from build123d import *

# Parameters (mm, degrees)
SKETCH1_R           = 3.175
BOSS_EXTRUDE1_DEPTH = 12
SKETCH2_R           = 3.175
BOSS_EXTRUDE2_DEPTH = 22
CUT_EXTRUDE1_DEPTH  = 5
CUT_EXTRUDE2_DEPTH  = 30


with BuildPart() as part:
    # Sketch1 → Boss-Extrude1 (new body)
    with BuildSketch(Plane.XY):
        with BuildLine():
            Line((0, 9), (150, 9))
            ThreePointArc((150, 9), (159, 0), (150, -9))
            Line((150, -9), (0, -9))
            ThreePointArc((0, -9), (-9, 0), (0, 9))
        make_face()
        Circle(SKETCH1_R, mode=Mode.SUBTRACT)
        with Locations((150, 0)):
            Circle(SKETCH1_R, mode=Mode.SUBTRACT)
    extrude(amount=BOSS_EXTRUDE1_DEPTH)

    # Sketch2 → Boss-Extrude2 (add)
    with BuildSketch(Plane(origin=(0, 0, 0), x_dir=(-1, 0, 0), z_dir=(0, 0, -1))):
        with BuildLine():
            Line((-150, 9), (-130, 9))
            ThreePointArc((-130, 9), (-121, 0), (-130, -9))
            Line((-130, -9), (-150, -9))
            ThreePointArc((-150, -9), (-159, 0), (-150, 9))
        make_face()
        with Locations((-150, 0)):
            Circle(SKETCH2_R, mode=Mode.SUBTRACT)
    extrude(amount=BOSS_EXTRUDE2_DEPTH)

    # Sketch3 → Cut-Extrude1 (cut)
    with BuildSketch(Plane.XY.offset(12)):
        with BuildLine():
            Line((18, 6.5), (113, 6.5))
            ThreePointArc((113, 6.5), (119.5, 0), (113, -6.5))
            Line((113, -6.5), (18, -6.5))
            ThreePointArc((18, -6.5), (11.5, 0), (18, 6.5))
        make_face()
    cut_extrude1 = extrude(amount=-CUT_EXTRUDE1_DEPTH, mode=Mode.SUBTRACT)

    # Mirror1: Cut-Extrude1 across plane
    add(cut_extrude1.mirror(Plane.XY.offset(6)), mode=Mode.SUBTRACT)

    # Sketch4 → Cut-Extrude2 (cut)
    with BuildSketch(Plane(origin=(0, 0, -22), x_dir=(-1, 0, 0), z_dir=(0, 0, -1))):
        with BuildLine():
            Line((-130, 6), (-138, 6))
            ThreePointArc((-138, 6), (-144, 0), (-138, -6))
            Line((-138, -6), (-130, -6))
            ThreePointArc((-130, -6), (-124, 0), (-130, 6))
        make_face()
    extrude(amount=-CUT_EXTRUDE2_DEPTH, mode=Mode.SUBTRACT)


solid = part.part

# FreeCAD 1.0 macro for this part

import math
import FreeCAD as App
import Part
import Sketcher

doc = App.newDocument("Part")
body = doc.addObject("PartDesign::Body", "Body")

# Sketch on XY plane
sketch1 = body.newObject("Sketcher::SketchObject", "Sketch")
sketch1.AttachmentSupport = (doc.getObject("XY_Plane"), [""])
sketch1.MapMode = "FlatFace"
sketch1.addGeometry([
    Part.LineSegment(App.Vector(150, 9, 0), App.Vector(0, 9, 0)),  # 0
    Part.ArcOfCircle(Part.Circle(App.Vector(0, 0, 0), App.Vector(0, 0, 1), 9), math.radians(90), math.radians(270)),  # 1
    Part.LineSegment(App.Vector(0, -9, 0), App.Vector(150, -9, 0)),  # 2
    Part.ArcOfCircle(Part.Circle(App.Vector(150, 0, 0), App.Vector(0, 0, 1), 9), math.radians(-90), math.radians(90)),  # 3
    Part.Circle(App.Vector(150, 0, 0), App.Vector(0, 0, 1), 3.2),  # 4
    Part.Circle(App.Vector(0, 0, 0), App.Vector(0, 0, 1), 3.2),  # 5
], False)
sketch1.addConstraint([
    Sketcher.Constraint("Tangent", 0, 2, 1, 1),
    Sketcher.Constraint("Tangent", 1, 2, 2, 1),
    Sketcher.Constraint("Tangent", 2, 2, 3, 1),
    Sketcher.Constraint("Tangent", 3, 2, 0, 1),
    Sketcher.Constraint("Horizontal", 0),
    Sketcher.Constraint("Horizontal", 2),
    Sketcher.Constraint("Coincident", 1, 3, -1, 1),
    Sketcher.Constraint("Coincident", 5, 3, -1, 1),
    Sketcher.Constraint("Coincident", 4, 3, 3, 3),
    Sketcher.Constraint("Equal", 4, 5),
    Sketcher.Constraint("Radius", 1, 9.0),
    Sketcher.Constraint("Diameter", 4, 6.35),
    Sketcher.Constraint("DistanceX", 0, 2, 0, 1, 150.0),
])
pad1 = body.newObject("PartDesign::Pad", "Pad")
pad1.Profile = sketch1
pad1.Length = 12

# Sketch on XY plane
sketch2 = body.newObject("Sketcher::SketchObject", "Sketch001")
sketch2.AttachmentSupport = (doc.getObject("XY_Plane"), [""])
sketch2.MapMode = "FlatFace"
sketch2.addGeometry([
    Part.LineSegment(App.Vector(130, 9, 0), App.Vector(150, 9, 0)),  # 0
    Part.ArcOfCircle(Part.Circle(App.Vector(150, 0, 0), App.Vector(0, 0, 1), 9), math.radians(-90), math.radians(90)),  # 1
    Part.LineSegment(App.Vector(150, -9, 0), App.Vector(130, -9, 0)),  # 2
    Part.ArcOfCircle(Part.Circle(App.Vector(130, 0, 0), App.Vector(0, 0, 1), 9), math.radians(90), math.radians(270)),  # 3
    Part.Circle(App.Vector(150, 0, 0), App.Vector(0, 0, 1), 3.2),  # 4
], False)
sketch2.addConstraint([
    Sketcher.Constraint("Tangent", 0, 2, 1, 2),
    Sketcher.Constraint("Tangent", 1, 1, 2, 1),
    Sketcher.Constraint("Tangent", 2, 2, 3, 2),
    Sketcher.Constraint("Tangent", 3, 1, 0, 1),
    Sketcher.Constraint("Horizontal", 0),
    Sketcher.Constraint("Horizontal", 2),
    Sketcher.Constraint("Coincident", 4, 3, 1, 3),
    Sketcher.Constraint("PointOnObject", 1, 3, -1),
    Sketcher.Constraint("Radius", 1, 9.0),
    Sketcher.Constraint("Diameter", 4, 6.35),
    Sketcher.Constraint("DistanceX", 0, 1, 0, 2, 20.0),
    Sketcher.Constraint("DistanceX", -1, 1, 1, 3, 150.0),
])
pad2 = body.newObject("PartDesign::Pad", "Pad001")
pad2.Profile = sketch2
pad2.Length = 22
pad2.Reversed = True

# Sketch on XY plane
sketch3 = body.newObject("Sketcher::SketchObject", "Sketch002")
sketch3.AttachmentSupport = (doc.getObject("XY_Plane"), [""])
sketch3.MapMode = "FlatFace"
sketch3.AttachmentOffset = App.Placement(App.Vector(0, 0, 12), App.Rotation())
sketch3.addGeometry([
    Part.LineSegment(App.Vector(113, 6, 0), App.Vector(18, 6, 0)),
    Part.ArcOfCircle(Part.Circle(App.Vector(18, 0, 0), App.Vector(0, 0, 1), 6), math.radians(90), math.radians(270)),
    Part.LineSegment(App.Vector(18, -6, 0), App.Vector(113, -6, 0)),
    Part.ArcOfCircle(Part.Circle(App.Vector(113, 0, 0), App.Vector(0, 0, 1), 6), math.radians(-90), math.radians(90)),
], False)
sketch3.addConstraint([
    Sketcher.Constraint("Tangent", 0, 2, 1, 1),
    Sketcher.Constraint("Tangent", 1, 2, 2, 1),
    Sketcher.Constraint("Tangent", 2, 2, 3, 1),
    Sketcher.Constraint("Tangent", 3, 2, 0, 1),
    Sketcher.Constraint("Horizontal", 0),
    Sketcher.Constraint("Horizontal", 2),
    Sketcher.Constraint("PointOnObject", 1, 3, -1),
    Sketcher.Constraint("Radius", 1, 6.5),
    Sketcher.Constraint("DistanceX", 0, 2, 0, 1, 95.0),
    Sketcher.Constraint("DistanceX", -1, 1, 1, 3, 18.0),
])
pocket1 = body.newObject("PartDesign::Pocket", "Pocket")
pocket1.Profile = sketch3
pocket1.Length = 5
doc.recompute()

datumplane = body.newObject("PartDesign::Plane", "DatumPlane")
datumplane.AttachmentSupport = (doc.getObject("XY_Plane"), [""])
datumplane.MapMode = "FlatFace"
datumplane.AttachmentOffset = App.Placement(App.Vector(0, 0, 6), App.Rotation())
mirrored = body.newObject("PartDesign::Mirrored", "Mirrored")
mirrored.Originals = [pocket1]
mirrored.MirrorPlane = (datumplane, [""])
body.Tip = mirrored

# Sketch on XY plane
sketch4 = body.newObject("Sketcher::SketchObject", "Sketch003")
sketch4.AttachmentSupport = (doc.getObject("XY_Plane"), [""])
sketch4.MapMode = "FlatFace"
sketch4.AttachmentOffset = App.Placement(App.Vector(0, 0, -22), App.Rotation())
sketch4.addGeometry([
    Part.LineSegment(App.Vector(130, 6, 0), App.Vector(138, 6, 0)),
    Part.ArcOfCircle(Part.Circle(App.Vector(138, 0, 0), App.Vector(0, 0, 1), 6), math.radians(-90), math.radians(90)),
    Part.LineSegment(App.Vector(138, -6, 0), App.Vector(130, -6, 0)),
    Part.ArcOfCircle(Part.Circle(App.Vector(130, 0, 0), App.Vector(0, 0, 1), 6), math.radians(90), math.radians(270)),
], False)
sketch4.addConstraint([
    Sketcher.Constraint("Tangent", 0, 2, 1, 2),
    Sketcher.Constraint("Tangent", 1, 1, 2, 1),
    Sketcher.Constraint("Tangent", 2, 2, 3, 2),
    Sketcher.Constraint("Tangent", 3, 1, 0, 1),
    Sketcher.Constraint("Horizontal", 0),
    Sketcher.Constraint("Horizontal", 2),
    Sketcher.Constraint("PointOnObject", 1, 3, -1),
    Sketcher.Constraint("Radius", 1, 6.0),
    Sketcher.Constraint("DistanceX", 0, 1, 0, 2, 8.0),
    Sketcher.Constraint("DistanceX", -1, 1, 1, 3, 138.0),
])
pocket2 = body.newObject("PartDesign::Pocket", "Pocket001")
pocket2.Profile = sketch4
pocket2.Length = 30
pocket2.Reversed = True

doc.recompute()
